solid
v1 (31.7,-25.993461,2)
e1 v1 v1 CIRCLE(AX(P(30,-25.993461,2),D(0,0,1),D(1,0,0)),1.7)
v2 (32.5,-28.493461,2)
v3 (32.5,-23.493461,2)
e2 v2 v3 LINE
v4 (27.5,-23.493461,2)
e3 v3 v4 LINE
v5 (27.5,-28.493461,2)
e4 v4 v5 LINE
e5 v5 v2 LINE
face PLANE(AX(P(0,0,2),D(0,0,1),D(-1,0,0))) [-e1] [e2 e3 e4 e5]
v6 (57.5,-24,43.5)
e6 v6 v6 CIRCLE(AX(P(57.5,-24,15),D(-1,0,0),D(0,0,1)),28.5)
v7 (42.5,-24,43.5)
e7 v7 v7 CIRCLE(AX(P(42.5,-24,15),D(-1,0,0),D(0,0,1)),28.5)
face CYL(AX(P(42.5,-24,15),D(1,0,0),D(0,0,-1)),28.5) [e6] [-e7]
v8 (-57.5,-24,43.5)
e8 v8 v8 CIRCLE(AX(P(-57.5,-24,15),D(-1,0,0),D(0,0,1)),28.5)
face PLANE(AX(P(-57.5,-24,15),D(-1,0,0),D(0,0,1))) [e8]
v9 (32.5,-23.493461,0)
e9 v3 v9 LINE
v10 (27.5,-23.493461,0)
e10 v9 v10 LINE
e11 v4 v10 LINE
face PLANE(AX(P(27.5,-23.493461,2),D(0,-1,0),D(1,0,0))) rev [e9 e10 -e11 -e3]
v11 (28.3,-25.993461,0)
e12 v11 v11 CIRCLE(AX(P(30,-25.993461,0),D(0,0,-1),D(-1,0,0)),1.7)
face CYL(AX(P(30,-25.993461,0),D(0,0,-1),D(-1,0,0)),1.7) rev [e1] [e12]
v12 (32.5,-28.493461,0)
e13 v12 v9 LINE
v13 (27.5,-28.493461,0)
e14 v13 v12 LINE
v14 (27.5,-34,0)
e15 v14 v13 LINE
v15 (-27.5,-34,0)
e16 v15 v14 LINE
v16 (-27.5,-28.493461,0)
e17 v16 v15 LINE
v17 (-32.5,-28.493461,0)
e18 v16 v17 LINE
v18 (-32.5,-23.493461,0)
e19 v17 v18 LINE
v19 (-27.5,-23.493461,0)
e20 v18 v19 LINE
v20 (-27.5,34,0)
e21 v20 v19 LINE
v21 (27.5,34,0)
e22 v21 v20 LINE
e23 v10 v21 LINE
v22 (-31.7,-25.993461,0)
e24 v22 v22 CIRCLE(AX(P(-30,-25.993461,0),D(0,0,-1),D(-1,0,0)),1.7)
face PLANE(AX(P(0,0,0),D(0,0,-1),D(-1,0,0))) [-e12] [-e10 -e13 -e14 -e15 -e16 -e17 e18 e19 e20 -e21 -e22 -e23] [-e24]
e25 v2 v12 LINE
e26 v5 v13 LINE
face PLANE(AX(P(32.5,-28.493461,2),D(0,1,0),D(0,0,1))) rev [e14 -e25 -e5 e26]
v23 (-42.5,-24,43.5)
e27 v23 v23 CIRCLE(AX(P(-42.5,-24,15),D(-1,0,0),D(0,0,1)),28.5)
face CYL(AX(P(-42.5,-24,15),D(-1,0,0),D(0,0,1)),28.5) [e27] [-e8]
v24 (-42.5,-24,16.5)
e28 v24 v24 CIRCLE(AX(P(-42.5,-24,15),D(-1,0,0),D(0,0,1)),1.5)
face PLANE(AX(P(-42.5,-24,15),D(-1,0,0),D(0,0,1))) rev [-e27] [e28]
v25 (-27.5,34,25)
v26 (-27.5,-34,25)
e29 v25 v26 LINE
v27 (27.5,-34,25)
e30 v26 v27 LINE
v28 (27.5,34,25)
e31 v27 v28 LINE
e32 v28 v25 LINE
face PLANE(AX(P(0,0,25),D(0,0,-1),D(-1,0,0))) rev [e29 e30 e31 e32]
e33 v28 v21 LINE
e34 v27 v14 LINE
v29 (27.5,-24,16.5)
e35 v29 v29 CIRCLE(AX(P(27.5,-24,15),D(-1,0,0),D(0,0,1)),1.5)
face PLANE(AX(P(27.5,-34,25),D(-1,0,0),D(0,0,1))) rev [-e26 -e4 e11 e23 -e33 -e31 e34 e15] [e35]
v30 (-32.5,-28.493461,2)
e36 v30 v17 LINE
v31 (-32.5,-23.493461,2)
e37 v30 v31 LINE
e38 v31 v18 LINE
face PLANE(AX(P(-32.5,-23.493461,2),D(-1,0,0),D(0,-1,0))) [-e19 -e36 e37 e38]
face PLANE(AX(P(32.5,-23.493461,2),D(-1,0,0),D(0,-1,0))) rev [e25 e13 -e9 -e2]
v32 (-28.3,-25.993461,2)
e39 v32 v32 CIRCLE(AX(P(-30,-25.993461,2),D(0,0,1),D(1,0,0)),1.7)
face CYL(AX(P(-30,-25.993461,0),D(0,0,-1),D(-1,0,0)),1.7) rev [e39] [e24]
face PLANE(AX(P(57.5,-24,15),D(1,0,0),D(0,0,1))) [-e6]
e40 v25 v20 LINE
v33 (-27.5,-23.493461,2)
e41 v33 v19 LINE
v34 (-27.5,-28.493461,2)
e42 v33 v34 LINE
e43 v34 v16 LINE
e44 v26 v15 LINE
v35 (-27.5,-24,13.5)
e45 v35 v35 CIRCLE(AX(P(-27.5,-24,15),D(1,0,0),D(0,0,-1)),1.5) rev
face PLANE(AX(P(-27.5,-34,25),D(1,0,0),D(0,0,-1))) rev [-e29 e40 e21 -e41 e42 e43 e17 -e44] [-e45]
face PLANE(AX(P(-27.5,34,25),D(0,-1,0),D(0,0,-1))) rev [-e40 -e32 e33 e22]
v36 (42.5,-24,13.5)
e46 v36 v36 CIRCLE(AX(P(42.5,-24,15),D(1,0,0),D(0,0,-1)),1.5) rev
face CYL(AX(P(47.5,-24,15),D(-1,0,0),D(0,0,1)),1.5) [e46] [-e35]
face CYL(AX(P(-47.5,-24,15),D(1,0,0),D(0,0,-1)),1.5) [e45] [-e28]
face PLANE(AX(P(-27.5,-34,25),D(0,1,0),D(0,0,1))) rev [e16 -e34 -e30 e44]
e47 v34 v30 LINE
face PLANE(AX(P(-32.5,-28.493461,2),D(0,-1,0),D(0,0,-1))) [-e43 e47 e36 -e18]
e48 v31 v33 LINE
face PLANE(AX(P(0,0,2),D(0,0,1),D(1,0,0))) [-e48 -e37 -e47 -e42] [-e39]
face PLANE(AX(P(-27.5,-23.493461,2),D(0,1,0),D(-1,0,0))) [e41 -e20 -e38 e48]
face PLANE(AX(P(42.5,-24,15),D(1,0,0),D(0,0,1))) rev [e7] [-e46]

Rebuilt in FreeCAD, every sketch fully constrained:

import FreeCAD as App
import Part
import Sketcher
from FreeCAD import Vector
Q = App.Units.Quantity

doc = App.newDocument("Part")
body = doc.addObject("PartDesign::Body", "Body")

sketch1 = body.newObject("Sketcher::SketchObject", "Sketch")
sketch1.AttachmentSupport = (doc.getObject("XY_Plane"), [""])
sketch1.MapMode = "FlatFace"
sketch1.addGeometry([
    Part.LineSegment(Vector(-28, 34, 0), Vector(-28, -34, 0)),
    Part.LineSegment(Vector(-28, -34, 0), Vector(28, -34, 0)),
    Part.LineSegment(Vector(28, -34, 0), Vector(28, 34, 0)),
    Part.LineSegment(Vector(28, 34, 0), Vector(-28, 34, 0)),
], False)
sketch1.addConstraint([
    Sketcher.Constraint("Coincident", 0, 2, 1, 1),
    Sketcher.Constraint("Coincident", 1, 2, 2, 1),
    Sketcher.Constraint("Coincident", 2, 2, 3, 1),
    Sketcher.Constraint("Coincident", 3, 2, 0, 1),
    Sketcher.Constraint("Vertical", 0),
    Sketcher.Constraint("Horizontal", 1),
    Sketcher.Constraint("Vertical", 2),
    Sketcher.Constraint("Horizontal", 3),
    Sketcher.Constraint("Symmetric", 0, 2, 2, 2, -1, 1),
    Sketcher.Constraint("DistanceX", 1, 1, 1, 2, Q("55 mm")),
    Sketcher.Constraint("DistanceY", 0, 2, 0, 1, Q("68 mm")),
])
pad1 = body.newObject("PartDesign::Pad", "Pad")
pad1.Profile = sketch1
pad1.Length = 25

sketch2 = body.newObject("Sketcher::SketchObject", "Sketch001")
sketch2.AttachmentSupport = (doc.getObject("YZ_Plane"), [""])
sketch2.MapMode = "FlatFace"
sketch2.AttachmentOffset = App.Placement(Vector(0, 0, -27.5), App.Rotation())
sketch2.addGeometry(Part.Circle(Vector(-24, 15, 0), Vector(0, 0, 1), 1.5), False)
sketch2.addConstraint([
    Sketcher.Constraint("Diameter", 0, Q("3 mm")),
    Sketcher.Constraint("DistanceX", 0, 3, -1, 1, Q("24 mm")),
    Sketcher.Constraint("DistanceY", -1, 1, 0, 3, Q("15 mm")),
])
pad2 = body.newObject("PartDesign::Pad", "Pad001")
pad2.Profile = sketch2
pad2.Length = 20
pad2.Reversed = True
doc.recompute()

mirrored = body.newObject("PartDesign::Mirrored", "Mirrored")
mirrored.Originals = [pad2]
mirrored.MirrorPlane = (doc.getObject("YZ_Plane"), [""])
body.Tip = mirrored

sketch3 = body.newObject("Sketcher::SketchObject", "Sketch002")
sketch3.AttachmentSupport = (doc.getObject("YZ_Plane"), [""])
sketch3.MapMode = "FlatFace"
sketch3.AttachmentOffset = App.Placement(Vector(0, 0, -42.5), App.Rotation())
sketch3.addGeometry(Part.Circle(Vector(-24, 15, 0), Vector(0, 0, 1), 28), False)
sketch3.addConstraint([
    Sketcher.Constraint("Diameter", 0, Q("57 mm")),
    Sketcher.Constraint("DistanceX", 0, 3, -1, 1, Q("24 mm")),
    Sketcher.Constraint("DistanceY", -1, 1, 0, 3, Q("15 mm")),
])
pad3 = body.newObject("PartDesign::Pad", "Pad002")
pad3.Profile = sketch3
pad3.Length = 15
pad3.Reversed = True
doc.recompute()

mirrored2 = body.newObject("PartDesign::Mirrored", "Mirrored001")
mirrored2.Originals = [pad3]
mirrored2.MirrorPlane = (doc.getObject("YZ_Plane"), [""])
body.Tip = mirrored2

sketch4 = body.newObject("Sketcher::SketchObject", "Sketch003")
sketch4.AttachmentSupport = (doc.getObject("XY_Plane"), [""])
sketch4.MapMode = "FlatFace"
sketch4.addGeometry([
    Part.LineSegment(Vector(-28, -23, 0), Vector(-28, -28, 0)),
    Part.LineSegment(Vector(-28, -28, 0), Vector(-32, -28, 0)),
    Part.LineSegment(Vector(-32, -28, 0), Vector(-32, -23, 0)),
    Part.LineSegment(Vector(-32, -23, 0), Vector(-28, -23, 0)),
], False)
sketch4.addConstraint([
    Sketcher.Constraint("Coincident", 0, 2, 1, 1),
    Sketcher.Constraint("Coincident", 1, 2, 2, 1),
    Sketcher.Constraint("Coincident", 2, 2, 3, 1),
    Sketcher.Constraint("Coincident", 3, 2, 0, 1),
    Sketcher.Constraint("Vertical", 0),
    Sketcher.Constraint("Horizontal", 1),
    Sketcher.Constraint("Vertical", 2),
    Sketcher.Constraint("Horizontal", 3),
    Sketcher.Constraint("Equal", 3, 0),
    Sketcher.Constraint("DistanceX", 1, 2, 1, 1, Q("5 mm")),
    Sketcher.Constraint("DistanceX", 0, 2, -1, 1, Q("27.5 mm")),
    Sketcher.Constraint("DistanceY", 0, 2, -1, 1, Q("28.493461 mm")),
])
pad4 = body.newObject("PartDesign::Pad", "Pad003")
pad4.Profile = sketch4
pad4.Length = 2

sketch5 = body.newObject("Sketcher::SketchObject", "Sketch004")
sketch5.AttachmentSupport = (doc.getObject("YZ_Plane"), [""])
sketch5.MapMode = "FlatFace"
sketch5.AttachmentOffset = App.Placement(Vector(0, 0, -30), App.Rotation())
sketch5.addGeometry([
    Part.LineSegment(Vector(-26, 4, 0), Vector(-26, 0, 0)),
    Part.LineSegment(Vector(-26, 0, 0), Vector(-24.3, 0, 0)),
    Part.LineSegment(Vector(-24.3, 0, 0), Vector(-24.3, 3, 0)),
    Part.LineSegment(Vector(-24.3, 3, 0), Vector(-26, 4, 0)),
], False)
sketch5.addGeometry(Part.LineSegment(Vector(-26, 0, 0), Vector(-26, 4, 0)), True)
sketch5.addConstraint([
    Sketcher.Constraint("Coincident", 0, 2, 1, 1),
    Sketcher.Constraint("Coincident", 1, 2, 2, 1),
    Sketcher.Constraint("Coincident", 2, 2, 3, 1),
    Sketcher.Constraint("Coincident", 3, 2, 0, 1),
    Sketcher.Constraint("Vertical", 0),
    Sketcher.Constraint("Horizontal", 1),
    Sketcher.Constraint("Vertical", 2),
    Sketcher.Constraint("Vertical", 4),
    Sketcher.Constraint("Coincident", 4, 1, 0, 2),
    Sketcher.Constraint("PointOnObject", 0, 2, -1),
    Sketcher.Constraint("Equal", 0, 4),
    Sketcher.Constraint("DistanceY", 2, 1, 2, 2, Q("3 mm")),
    Sketcher.Constraint("Angle", 3, Q("149 deg")),
    Sketcher.Constraint("DistanceX", 1, 1, 1, 2, Q("1.7 mm")),
    Sketcher.Constraint("DistanceX", 0, 2, -1, 1, Q("25.993461 mm")),
])
groove = body.newObject("PartDesign::Groove", "Groove")
groove.Profile = sketch5
groove.ReferenceAxis = (sketch5, ["Axis0"])
groove.Angle = 360
doc.recompute()

mirrored3 = body.newObject("PartDesign::Mirrored", "Mirrored002")
mirrored3.Originals = [pad4, groove]
mirrored3.MirrorPlane = (doc.getObject("YZ_Plane"), [""])
body.Tip = mirrored3

doc.recompute()
